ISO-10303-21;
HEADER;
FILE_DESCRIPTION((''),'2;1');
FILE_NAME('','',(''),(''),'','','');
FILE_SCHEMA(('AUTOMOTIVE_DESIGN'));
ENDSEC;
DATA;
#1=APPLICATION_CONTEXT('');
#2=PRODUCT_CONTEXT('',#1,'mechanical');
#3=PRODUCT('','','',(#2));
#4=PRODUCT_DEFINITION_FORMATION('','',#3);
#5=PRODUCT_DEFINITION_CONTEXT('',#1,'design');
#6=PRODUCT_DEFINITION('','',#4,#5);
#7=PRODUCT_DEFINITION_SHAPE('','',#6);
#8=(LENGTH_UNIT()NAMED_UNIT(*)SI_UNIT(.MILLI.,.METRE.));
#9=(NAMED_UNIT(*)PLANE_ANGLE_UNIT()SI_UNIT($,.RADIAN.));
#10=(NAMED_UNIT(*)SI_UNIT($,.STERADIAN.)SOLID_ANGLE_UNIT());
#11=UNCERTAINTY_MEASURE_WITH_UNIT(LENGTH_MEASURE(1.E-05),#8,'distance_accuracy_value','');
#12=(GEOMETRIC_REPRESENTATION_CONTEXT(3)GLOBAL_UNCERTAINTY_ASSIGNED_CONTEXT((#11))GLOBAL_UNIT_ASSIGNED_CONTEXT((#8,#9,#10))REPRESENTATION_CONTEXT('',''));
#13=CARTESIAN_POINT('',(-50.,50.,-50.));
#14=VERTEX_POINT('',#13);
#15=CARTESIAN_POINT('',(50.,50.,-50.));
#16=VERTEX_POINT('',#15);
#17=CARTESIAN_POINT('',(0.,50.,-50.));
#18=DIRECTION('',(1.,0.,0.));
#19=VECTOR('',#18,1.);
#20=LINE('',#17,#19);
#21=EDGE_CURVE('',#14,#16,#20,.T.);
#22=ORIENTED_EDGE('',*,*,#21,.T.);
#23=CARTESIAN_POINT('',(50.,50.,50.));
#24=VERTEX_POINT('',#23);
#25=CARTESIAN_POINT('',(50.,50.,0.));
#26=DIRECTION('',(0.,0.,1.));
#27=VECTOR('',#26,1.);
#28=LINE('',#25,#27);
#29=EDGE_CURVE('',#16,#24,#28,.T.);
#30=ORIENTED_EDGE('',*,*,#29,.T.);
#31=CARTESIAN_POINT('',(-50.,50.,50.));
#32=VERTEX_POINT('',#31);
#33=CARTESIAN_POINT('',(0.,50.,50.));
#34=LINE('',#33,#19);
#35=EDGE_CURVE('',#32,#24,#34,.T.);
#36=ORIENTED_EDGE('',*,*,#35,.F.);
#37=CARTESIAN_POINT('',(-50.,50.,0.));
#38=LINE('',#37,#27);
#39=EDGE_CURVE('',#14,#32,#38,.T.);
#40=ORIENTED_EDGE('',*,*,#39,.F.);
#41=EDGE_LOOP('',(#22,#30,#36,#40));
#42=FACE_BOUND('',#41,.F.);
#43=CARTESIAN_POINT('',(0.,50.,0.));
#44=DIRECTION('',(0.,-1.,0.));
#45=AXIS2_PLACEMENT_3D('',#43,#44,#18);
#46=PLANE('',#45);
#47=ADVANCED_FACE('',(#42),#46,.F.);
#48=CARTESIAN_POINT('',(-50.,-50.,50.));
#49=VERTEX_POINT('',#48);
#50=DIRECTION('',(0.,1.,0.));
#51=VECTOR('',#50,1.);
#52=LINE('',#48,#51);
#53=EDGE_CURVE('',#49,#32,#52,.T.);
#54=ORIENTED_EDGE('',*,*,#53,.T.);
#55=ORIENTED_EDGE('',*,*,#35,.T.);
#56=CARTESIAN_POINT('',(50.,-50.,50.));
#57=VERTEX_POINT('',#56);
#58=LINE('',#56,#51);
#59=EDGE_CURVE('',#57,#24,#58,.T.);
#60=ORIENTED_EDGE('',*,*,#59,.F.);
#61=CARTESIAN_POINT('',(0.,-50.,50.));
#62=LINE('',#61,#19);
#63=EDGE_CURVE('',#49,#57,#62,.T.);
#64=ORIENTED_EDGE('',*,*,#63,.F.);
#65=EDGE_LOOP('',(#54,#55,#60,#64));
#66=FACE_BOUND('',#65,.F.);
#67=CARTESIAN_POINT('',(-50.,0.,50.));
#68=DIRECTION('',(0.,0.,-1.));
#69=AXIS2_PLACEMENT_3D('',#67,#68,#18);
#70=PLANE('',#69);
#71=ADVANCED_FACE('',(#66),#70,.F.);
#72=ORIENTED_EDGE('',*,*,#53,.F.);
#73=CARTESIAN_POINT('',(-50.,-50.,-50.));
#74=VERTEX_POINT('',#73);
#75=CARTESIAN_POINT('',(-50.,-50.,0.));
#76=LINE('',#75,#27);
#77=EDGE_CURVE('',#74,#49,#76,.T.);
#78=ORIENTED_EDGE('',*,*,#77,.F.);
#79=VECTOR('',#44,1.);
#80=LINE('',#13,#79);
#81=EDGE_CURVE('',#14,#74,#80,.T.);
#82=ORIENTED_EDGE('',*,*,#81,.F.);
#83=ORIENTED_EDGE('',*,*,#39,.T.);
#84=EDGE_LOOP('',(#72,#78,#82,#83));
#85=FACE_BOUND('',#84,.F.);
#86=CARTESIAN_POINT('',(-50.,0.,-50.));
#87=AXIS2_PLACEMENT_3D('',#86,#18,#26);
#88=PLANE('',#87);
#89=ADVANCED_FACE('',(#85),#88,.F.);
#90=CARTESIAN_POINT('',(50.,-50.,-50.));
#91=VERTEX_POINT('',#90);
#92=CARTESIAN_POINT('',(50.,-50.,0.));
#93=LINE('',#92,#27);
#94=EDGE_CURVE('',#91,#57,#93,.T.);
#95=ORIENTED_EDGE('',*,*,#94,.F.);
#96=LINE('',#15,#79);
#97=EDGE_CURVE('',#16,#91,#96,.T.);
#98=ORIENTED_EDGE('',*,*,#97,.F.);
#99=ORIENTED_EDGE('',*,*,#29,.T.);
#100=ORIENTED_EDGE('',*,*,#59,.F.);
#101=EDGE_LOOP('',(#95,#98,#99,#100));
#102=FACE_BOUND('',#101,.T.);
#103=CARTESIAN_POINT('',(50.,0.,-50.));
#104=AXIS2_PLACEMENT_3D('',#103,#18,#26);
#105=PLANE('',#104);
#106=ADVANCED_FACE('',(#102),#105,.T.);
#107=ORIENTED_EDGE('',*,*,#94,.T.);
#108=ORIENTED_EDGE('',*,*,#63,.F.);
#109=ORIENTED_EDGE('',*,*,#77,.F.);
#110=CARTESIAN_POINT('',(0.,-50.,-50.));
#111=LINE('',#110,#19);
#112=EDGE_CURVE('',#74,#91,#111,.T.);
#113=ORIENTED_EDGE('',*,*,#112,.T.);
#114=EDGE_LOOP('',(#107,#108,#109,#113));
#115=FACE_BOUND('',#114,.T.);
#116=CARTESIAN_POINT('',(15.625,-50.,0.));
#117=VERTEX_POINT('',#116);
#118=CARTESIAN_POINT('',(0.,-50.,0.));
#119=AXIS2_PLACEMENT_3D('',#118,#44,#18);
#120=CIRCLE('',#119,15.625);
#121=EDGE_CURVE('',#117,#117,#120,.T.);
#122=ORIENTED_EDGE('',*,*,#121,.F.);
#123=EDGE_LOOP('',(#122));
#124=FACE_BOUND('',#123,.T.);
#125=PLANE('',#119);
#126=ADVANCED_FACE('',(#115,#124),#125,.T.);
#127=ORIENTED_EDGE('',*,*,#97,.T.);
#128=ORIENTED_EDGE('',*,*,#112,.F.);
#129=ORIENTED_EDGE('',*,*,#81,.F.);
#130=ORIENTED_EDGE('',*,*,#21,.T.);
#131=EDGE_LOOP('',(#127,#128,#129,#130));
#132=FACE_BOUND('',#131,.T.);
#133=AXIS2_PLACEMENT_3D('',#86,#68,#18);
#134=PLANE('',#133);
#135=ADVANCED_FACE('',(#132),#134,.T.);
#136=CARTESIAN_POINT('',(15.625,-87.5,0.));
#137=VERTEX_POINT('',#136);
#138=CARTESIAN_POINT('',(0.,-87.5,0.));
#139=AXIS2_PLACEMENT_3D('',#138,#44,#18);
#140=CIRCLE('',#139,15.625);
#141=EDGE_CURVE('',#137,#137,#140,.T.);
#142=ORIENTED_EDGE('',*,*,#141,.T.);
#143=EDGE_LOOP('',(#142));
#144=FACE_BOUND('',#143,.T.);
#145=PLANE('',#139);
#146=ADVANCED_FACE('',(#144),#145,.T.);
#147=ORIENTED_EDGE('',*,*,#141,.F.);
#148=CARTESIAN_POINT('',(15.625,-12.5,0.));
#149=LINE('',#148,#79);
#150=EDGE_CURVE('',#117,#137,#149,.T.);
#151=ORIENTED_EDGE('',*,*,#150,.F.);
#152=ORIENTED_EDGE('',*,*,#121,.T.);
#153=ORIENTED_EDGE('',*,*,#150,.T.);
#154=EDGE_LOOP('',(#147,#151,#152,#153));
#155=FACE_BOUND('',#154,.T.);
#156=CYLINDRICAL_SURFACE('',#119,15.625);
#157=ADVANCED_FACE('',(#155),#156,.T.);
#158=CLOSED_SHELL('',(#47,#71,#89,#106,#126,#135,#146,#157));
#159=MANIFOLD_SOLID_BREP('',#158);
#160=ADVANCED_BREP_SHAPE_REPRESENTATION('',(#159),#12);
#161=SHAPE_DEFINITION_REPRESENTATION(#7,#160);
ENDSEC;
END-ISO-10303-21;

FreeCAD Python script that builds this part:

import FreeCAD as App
import Part
import Sketcher


def add_polygon(sketch, points):
    """Adds a closed chain of lines whose ends are joined by coincident constraints."""
    first, n = sketch.GeometryCount, len(points)
    for a, b in zip(points, points[1:] + points[:1]):
        sketch.addGeometry(Part.LineSegment(App.Vector(*a, 0), App.Vector(*b, 0)), False)
    for i in range(n):
        sketch.addConstraint(Sketcher.Constraint("Coincident", first + i, 2, first + (i + 1) % n, 1))

doc = App.newDocument("Part")
body = doc.addObject("PartDesign::Body", "Body")

sketch1 = body.newObject("Sketcher::SketchObject", "Sketch")
sketch1.AttachmentSupport = (doc.getObject("XZ_Plane"), [""])
sketch1.MapMode = "FlatFace"
add_polygon(sketch1, [(-50, 50), (-50, -50), (50, -50), (50, 50)])
sketch1.addConstraint(Sketcher.Constraint("Vertical", 0))
sketch1.addConstraint(Sketcher.Constraint("Horizontal", 1))
sketch1.addConstraint(Sketcher.Constraint("Vertical", 2))
sketch1.addConstraint(Sketcher.Constraint("Horizontal", 3))
sketch1.addConstraint(Sketcher.Constraint("Symmetric", 0, 2, 2, 2, -1, 1))
sketch1.addConstraint(Sketcher.Constraint("Equal", 3, 0))
sketch1.addConstraint(Sketcher.Constraint("DistanceX", 1, 1, 1, 2, 100.0))
pad1 = body.newObject("PartDesign::Pad", "Pad")
pad1.Profile = sketch1
pad1.Length = 100
pad1.Midplane = True

sketch2 = body.newObject("Sketcher::SketchObject", "Sketch001")
sketch2.AttachmentSupport = (doc.getObject("XZ_Plane"), [""])
sketch2.MapMode = "FlatFace"
sketch2.AttachmentOffset = App.Placement(App.Vector(0, 0, 50), App.Rotation())
sketch2.addGeometry(Part.Circle(App.Vector(0, 0, 0), App.Vector(0, 0, 1), 16), False)
sketch2.addConstraint(Sketcher.Constraint("Coincident", 0, 3, -1, 1))
sketch2.addConstraint(Sketcher.Constraint("Diameter", 0, 31.25))
pad2 = body.newObject("PartDesign::Pad", "Pad001")
pad2.Profile = sketch2
pad2.Length = 75
pad2.Midplane = True

sketch3 = body.newObject("Sketcher::SketchObject", "Sketch002")
sketch3.AttachmentSupport = (doc.getObject("XZ_Plane"), [""])
sketch3.MapMode = "FlatFace"
sketch3.AttachmentOffset = App.Placement(App.Vector(0, 0, 50), App.Rotation())
sketch3.addGeometry(Part.Circle(App.Vector(0, 0, 0), App.Vector(0, 0, 1), 31), False)
sketch3.addGeometry(Part.Circle(App.Vector(0, 0, 0), App.Vector(0, 0, 1), 16), False)
sketch3.addConstraint(Sketcher.Constraint("Coincident", 0, 3, -1, 1))
sketch3.addConstraint(Sketcher.Constraint("Coincident", 1, 3, -1, 1))
sketch3.addConstraint(Sketcher.Constraint("Diameter", 0, 62.5))
sketch3.addConstraint(Sketcher.Constraint("Diameter", 1, 31.25))
pad3 = body.newObject("PartDesign::Pad", "Pad002")
pad3.Profile = sketch3
pad3.Length = 50
pad3.Reversed = True

doc.recompute()
